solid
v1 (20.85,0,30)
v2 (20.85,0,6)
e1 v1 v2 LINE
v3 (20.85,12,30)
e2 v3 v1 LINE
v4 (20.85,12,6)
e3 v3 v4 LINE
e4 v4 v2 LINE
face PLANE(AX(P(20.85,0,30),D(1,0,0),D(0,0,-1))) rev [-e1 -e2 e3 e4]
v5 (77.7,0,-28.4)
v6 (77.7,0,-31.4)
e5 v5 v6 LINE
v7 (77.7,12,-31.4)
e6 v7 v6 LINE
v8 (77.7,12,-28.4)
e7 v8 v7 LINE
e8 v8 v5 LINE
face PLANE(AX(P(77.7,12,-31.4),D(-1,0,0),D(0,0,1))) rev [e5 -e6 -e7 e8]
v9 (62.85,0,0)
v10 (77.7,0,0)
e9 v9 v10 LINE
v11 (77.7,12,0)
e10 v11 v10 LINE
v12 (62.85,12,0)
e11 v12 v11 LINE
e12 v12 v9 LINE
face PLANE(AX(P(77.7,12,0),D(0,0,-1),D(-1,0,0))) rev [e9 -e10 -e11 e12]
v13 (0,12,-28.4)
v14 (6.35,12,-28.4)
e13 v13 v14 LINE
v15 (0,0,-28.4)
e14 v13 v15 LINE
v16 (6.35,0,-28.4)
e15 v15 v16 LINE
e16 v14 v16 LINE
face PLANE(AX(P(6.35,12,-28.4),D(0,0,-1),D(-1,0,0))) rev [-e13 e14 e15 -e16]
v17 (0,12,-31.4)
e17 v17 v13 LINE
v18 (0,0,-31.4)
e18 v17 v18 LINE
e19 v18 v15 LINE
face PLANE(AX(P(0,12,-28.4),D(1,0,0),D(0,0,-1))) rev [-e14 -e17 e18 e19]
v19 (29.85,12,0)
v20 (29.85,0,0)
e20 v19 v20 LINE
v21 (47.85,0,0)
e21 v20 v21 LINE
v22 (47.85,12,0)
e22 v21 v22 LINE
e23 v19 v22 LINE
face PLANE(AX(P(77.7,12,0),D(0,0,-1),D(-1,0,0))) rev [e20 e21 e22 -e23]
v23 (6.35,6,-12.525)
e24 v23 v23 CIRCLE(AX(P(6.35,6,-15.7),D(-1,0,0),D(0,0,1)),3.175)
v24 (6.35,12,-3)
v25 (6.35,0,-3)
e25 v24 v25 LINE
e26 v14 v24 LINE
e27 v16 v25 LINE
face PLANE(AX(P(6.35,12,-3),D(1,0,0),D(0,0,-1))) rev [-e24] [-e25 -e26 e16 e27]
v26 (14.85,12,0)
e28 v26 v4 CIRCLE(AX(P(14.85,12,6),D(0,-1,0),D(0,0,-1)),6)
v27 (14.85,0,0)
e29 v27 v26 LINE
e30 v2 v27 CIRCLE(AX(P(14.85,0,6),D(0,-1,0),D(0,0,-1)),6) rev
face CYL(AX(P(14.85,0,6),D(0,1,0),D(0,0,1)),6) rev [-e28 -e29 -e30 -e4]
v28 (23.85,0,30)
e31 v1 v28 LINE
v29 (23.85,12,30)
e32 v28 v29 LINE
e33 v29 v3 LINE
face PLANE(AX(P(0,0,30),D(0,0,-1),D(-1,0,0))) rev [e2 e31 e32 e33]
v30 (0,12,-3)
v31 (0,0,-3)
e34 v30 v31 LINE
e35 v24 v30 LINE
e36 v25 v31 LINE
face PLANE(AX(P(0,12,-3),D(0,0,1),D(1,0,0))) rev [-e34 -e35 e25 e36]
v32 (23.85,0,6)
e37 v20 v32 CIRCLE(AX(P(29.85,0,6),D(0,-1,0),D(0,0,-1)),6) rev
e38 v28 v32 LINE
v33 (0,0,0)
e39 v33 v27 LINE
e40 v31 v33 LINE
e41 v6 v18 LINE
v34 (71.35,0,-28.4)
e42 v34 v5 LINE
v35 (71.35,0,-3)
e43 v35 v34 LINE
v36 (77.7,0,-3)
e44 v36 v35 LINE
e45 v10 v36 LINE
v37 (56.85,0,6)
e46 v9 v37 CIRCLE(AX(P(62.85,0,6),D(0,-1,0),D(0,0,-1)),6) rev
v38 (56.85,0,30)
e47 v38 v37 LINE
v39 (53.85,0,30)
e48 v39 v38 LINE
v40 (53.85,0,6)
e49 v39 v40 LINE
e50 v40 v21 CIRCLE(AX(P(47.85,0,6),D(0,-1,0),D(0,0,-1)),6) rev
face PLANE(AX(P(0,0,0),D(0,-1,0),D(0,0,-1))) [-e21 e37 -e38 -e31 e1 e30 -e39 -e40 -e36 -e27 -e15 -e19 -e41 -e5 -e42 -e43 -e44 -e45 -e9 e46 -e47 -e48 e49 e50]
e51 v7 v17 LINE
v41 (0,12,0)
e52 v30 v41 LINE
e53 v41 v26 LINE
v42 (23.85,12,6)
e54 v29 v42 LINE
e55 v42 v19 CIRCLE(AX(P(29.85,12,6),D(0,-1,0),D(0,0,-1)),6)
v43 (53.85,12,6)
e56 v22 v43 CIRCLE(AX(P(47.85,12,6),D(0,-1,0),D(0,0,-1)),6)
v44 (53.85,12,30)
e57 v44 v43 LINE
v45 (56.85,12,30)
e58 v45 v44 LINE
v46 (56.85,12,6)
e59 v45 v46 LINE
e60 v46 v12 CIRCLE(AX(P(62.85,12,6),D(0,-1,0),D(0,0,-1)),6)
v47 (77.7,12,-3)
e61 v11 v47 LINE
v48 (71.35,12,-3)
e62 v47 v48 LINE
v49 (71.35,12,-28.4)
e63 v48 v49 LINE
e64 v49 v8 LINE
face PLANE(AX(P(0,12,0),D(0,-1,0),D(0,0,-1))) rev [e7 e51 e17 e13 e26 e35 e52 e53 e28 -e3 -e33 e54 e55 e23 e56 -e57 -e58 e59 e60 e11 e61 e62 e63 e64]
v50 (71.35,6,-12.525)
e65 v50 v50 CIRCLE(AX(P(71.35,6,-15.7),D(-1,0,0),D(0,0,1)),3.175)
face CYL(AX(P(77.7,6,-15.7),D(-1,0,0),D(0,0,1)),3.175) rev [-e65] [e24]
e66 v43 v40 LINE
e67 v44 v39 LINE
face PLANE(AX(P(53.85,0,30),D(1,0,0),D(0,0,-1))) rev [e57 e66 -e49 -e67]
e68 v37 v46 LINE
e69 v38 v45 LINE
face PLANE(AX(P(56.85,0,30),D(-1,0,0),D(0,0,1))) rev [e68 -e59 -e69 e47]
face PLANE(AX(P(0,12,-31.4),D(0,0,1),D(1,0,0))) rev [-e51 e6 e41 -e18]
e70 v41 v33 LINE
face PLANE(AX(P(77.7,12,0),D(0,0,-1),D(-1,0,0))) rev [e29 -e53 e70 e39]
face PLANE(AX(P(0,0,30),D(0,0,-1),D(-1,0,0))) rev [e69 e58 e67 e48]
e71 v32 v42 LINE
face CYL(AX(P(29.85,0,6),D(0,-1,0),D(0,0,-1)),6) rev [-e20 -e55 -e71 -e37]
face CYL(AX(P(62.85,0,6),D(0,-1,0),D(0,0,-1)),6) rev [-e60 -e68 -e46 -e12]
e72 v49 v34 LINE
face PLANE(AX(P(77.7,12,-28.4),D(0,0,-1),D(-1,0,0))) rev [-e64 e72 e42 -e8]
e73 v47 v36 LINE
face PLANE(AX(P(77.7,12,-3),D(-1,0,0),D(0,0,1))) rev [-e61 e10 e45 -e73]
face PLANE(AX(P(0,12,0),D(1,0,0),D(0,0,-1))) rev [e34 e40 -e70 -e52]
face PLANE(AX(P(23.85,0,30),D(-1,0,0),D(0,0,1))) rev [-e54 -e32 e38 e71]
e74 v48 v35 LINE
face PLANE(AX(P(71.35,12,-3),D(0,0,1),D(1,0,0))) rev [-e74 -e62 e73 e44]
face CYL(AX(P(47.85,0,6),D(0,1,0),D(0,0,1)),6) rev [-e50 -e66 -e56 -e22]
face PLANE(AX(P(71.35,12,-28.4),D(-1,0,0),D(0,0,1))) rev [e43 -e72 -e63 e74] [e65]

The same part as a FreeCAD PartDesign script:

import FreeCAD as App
import Part
import Sketcher
from FreeCAD import Vector
Q = App.Units.Quantity


def edges_at(feature, points):
    """Names of the edges that pass closest to the given points."""
    edges = feature.Shape.Edges
    near = lambda p: min(range(len(edges)), key=lambda i: edges[i].distToShape(Part.Vertex(*p))[0])
    return sorted({f"Edge{near(p) + 1}" for p in points})

doc = App.newDocument("Part")
body = doc.addObject("PartDesign::Body", "Body")

# Sketch on XZ plane
sketch1 = body.newObject("Sketcher::SketchObject", "Sketch")
sketch1.AttachmentSupport = (doc.getObject("XZ_Plane"), [""])
sketch1.MapMode = "FlatFace"
sketch1.addGeometry([
    Part.LineSegment(Vector(0, -3, 0), Vector(0, 0, 0)),  # 0
    Part.LineSegment(Vector(0, 0, 0), Vector(77.7, 0, 0)),  # 1
    Part.LineSegment(Vector(77.7, 0, 0), Vector(77.7, -3, 0)),  # 2
    Part.LineSegment(Vector(77.7, -3, 0), Vector(71.3, -3, 0)),  # 3
    Part.LineSegment(Vector(71.3, -3, 0), Vector(71.3, -28.4, 0)),  # 4
    Part.LineSegment(Vector(71.3, -28.4, 0), Vector(77.7, -28.4, 0)),  # 5
    Part.LineSegment(Vector(77.7, -28.4, 0), Vector(77.7, -31.4, 0)),  # 6
    Part.LineSegment(Vector(77.7, -31.4, 0), Vector(0, -31.4, 0)),  # 7
    Part.LineSegment(Vector(0, -31.4, 0), Vector(0, -28.4, 0)),  # 8
    Part.LineSegment(Vector(0, -28.4, 0), Vector(6.3, -28.4, 0)),  # 9
    Part.LineSegment(Vector(6.3, -28.4, 0), Vector(6.3, -3, 0)),  # 10
    Part.LineSegment(Vector(6.3, -3, 0), Vector(0, -3, 0)),  # 11
], False)
sketch1.addConstraint([
    Sketcher.Constraint("Coincident", 0, 2, 1, 1),
    Sketcher.Constraint("Coincident", 1, 2, 2, 1),
    Sketcher.Constraint("Coincident", 2, 2, 3, 1),
    Sketcher.Constraint("Coincident", 3, 2, 4, 1),
    Sketcher.Constraint("Coincident", 4, 2, 5, 1),
    Sketcher.Constraint("Coincident", 5, 2, 6, 1),
    Sketcher.Constraint("Coincident", 6, 2, 7, 1),
    Sketcher.Constraint("Coincident", 7, 2, 8, 1),
    Sketcher.Constraint("Coincident", 8, 2, 9, 1),
    Sketcher.Constraint("Coincident", 9, 2, 10, 1),
    Sketcher.Constraint("Coincident", 10, 2, 11, 1),
    Sketcher.Constraint("Coincident", 11, 2, 0, 1),
    Sketcher.Constraint("Vertical", 0),
    Sketcher.Constraint("Horizontal", 1),
    Sketcher.Constraint("Vertical", 2),
    Sketcher.Constraint("Horizontal", 3),
    Sketcher.Constraint("Vertical", 4),
    Sketcher.Constraint("Horizontal", 5),
    Sketcher.Constraint("Vertical", 6),
    Sketcher.Constraint("Horizontal", 7),
    Sketcher.Constraint("Vertical", 8),
    Sketcher.Constraint("Horizontal", 9),
    Sketcher.Constraint("Vertical", 10),
    Sketcher.Constraint("Horizontal", 11),
    Sketcher.Constraint("Coincident", 0, 2, -1, 1),
    Sketcher.Constraint("PointOnObject", 7, 2, -2),
    Sketcher.Constraint("Horizontal", 5, 2, 8, 2),
    Sketcher.Constraint("Horizontal", 3, 2, 10, 2),
    Sketcher.Constraint("Vertical", 2, 2, 5, 2),
    Sketcher.Constraint("Equal", 5, 9),
    Sketcher.Constraint("Equal", 2, 6),
    Sketcher.Constraint("DistanceY", 0, 1, 0, 2, Q("3 mm")),
    Sketcher.Constraint("DistanceX", 1, 1, 1, 2, Q("77.7 mm")),
    Sketcher.Constraint("DistanceY", 4, 2, 4, 1, Q("25.4 mm")),
    Sketcher.Constraint("DistanceX", 9, 2, 4, 2, Q("65 mm")),
])
pad1 = body.newObject("PartDesign::Pad", "Pad")
pad1.Profile = sketch1
pad1.Length = 12
pad1.Reversed = True

# Sketch on YZ plane
sketch2 = body.newObject("Sketcher::SketchObject", "Sketch001")
sketch2.AttachmentSupport = (doc.getObject("YZ_Plane"), [""])
sketch2.MapMode = "FlatFace"
sketch2.AttachmentOffset = App.Placement(Vector(0, 0, 6.35), App.Rotation())
sketch2.addGeometry(Part.Circle(Vector(6, -15.7, 0), Vector(0, 0, 1), 3.2), False)
sketch2.addConstraint([
    Sketcher.Constraint("Diameter", 0, Q("6.35 mm")),
    Sketcher.Constraint("DistanceX", -1, 1, 0, 3, Q("6 mm")),
    Sketcher.Constraint("DistanceY", 0, 3, -1, 1, Q("15.7 mm")),
])
pocket1 = body.newObject("PartDesign::Pocket", "Pocket")
pocket1.Profile = sketch2
pocket1.Type = "ThroughAll"
pocket1.Reversed = True

# Sketch on XY plane
sketch3 = body.newObject("Sketcher::SketchObject", "Sketch002")
sketch3.AttachmentSupport = (doc.getObject("XY_Plane"), [""])
sketch3.MapMode = "FlatFace"
sketch3.addGeometry([
    Part.LineSegment(Vector(20.9, 12, 0), Vector(20.9, 0, 0)),  # 0
    Part.LineSegment(Vector(20.9, 0, 0), Vector(23.9, 0, 0)),  # 1
    Part.LineSegment(Vector(23.9, 0, 0), Vector(23.9, 12, 0)),  # 2
    Part.LineSegment(Vector(23.9, 12, 0), Vector(20.9, 12, 0)),  # 3
    Part.LineSegment(Vector(53.9, 12, 0), Vector(53.9, 0, 0)),  # 4
    Part.LineSegment(Vector(53.9, 0, 0), Vector(56.9, 0, 0)),  # 5
    Part.LineSegment(Vector(56.9, 0, 0), Vector(56.9, 12, 0)),  # 6
    Part.LineSegment(Vector(56.9, 12, 0), Vector(53.9, 12, 0)),  # 7
], False)
sketch3.addConstraint([
    Sketcher.Constraint("Coincident", 0, 2, 1, 1),
    Sketcher.Constraint("Coincident", 1, 2, 2, 1),
    Sketcher.Constraint("Coincident", 2, 2, 3, 1),
    Sketcher.Constraint("Coincident", 3, 2, 0, 1),
    Sketcher.Constraint("Coincident", 4, 2, 5, 1),
    Sketcher.Constraint("Coincident", 5, 2, 6, 1),
    Sketcher.Constraint("Coincident", 6, 2, 7, 1),
    Sketcher.Constraint("Coincident", 7, 2, 4, 1),
    Sketcher.Constraint("Vertical", 0),
    Sketcher.Constraint("Horizontal", 1),
    Sketcher.Constraint("Vertical", 2),
    Sketcher.Constraint("Horizontal", 3),
    Sketcher.Constraint("Vertical", 4),
    Sketcher.Constraint("Horizontal", 5),
    Sketcher.Constraint("Vertical", 6),
    Sketcher.Constraint("Horizontal", 7),
    Sketcher.Constraint("PointOnObject", 0, 2, -1),
    Sketcher.Constraint("PointOnObject", 4, 2, -1),
    Sketcher.Constraint("Horizontal", 3, 2, 6, 2),
    Sketcher.Constraint("Equal", 3, 5),
    Sketcher.Constraint("DistanceX", 1, 1, 1, 2, Q("3 mm")),
    Sketcher.Constraint("DistanceY", 0, 2, 0, 1, Q("12 mm")),
    Sketcher.Constraint("DistanceX", 1, 2, 4, 2, Q("30 mm")),
    Sketcher.Constraint("DistanceX", -1, 1, 0, 2, Q("20.85 mm")),
])
pad2 = body.newObject("PartDesign::Pad", "Pad001")
pad2.Profile = sketch3
pad2.Length = 30
doc.recompute()

fillet = body.newObject("PartDesign::Fillet", "Fillet")
fillet.Base = (pad2, edges_at(pad2, [
    (20.85, 6, 0),
    (53.85, 6, 0),
    (23.85, 6, 0),
    (56.85, 6, 0),
]))
fillet.Radius = 6

doc.recompute()
